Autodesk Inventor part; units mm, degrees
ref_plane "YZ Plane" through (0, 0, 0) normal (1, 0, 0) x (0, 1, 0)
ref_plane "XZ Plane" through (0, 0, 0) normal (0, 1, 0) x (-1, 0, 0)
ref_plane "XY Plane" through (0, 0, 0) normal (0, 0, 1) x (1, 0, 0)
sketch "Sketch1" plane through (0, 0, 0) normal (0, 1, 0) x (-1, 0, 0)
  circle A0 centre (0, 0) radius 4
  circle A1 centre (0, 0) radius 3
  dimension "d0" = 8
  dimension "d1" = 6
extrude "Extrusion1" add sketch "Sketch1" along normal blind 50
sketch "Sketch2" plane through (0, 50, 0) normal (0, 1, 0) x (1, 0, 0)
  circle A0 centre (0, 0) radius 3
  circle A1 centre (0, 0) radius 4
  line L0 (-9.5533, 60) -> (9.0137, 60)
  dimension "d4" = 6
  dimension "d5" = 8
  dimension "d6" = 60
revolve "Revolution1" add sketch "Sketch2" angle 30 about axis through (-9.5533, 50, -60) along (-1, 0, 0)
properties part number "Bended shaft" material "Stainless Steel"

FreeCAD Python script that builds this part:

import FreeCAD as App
import Part
import Sketcher

doc = App.newDocument("Part")
body = doc.addObject("PartDesign::Body", "Body")

# Sketch on XZ plane
sketch1 = body.newObject("Sketcher::SketchObject", "Sketch")
sketch1.AttachmentSupport = (doc.getObject("XZ_Plane"), [""])
sketch1.MapMode = "FlatFace"
sketch1.addGeometry([
    Part.Circle(App.Vector(0, 0, 0), App.Vector(0, 0, 1), 4),
    Part.Circle(App.Vector(0, 0, 0), App.Vector(0, 0, 1), 3),
], False)
sketch1.addConstraint([
    Sketcher.Constraint("Coincident", 0, 3, -1, 1),
    Sketcher.Constraint("Coincident", 1, 3, -1, 1),
    Sketcher.Constraint("Diameter", 0, 8.0),
    Sketcher.Constraint("Diameter", 1, 6.0),
])
pad1 = body.newObject("PartDesign::Pad", "Pad")
pad1.Profile = sketch1
pad1.Length = 50
pad1.Reversed = True

# Sketch on XZ plane
sketch2 = body.newObject("Sketcher::SketchObject", "Sketch001")
sketch2.AttachmentSupport = (doc.getObject("XZ_Plane"), [""])
sketch2.MapMode = "FlatFace"
sketch2.AttachmentOffset = App.Placement(App.Vector(0, 0, -50), App.Rotation())
sketch2.addGeometry([
    Part.Circle(App.Vector(0, 0, 0), App.Vector(0, 0, 1), 4),
    Part.Circle(App.Vector(0, 0, 0), App.Vector(0, 0, 1), 3),
], False)
sketch2.addGeometry(Part.LineSegment(App.Vector(0, -60, 0), App.Vector(-10, -60, 0)), True)  # axis
sketch2.addConstraint([
    Sketcher.Constraint("Horizontal", 2),
    Sketcher.Constraint("Coincident", 0, 3, -1, 1),
    Sketcher.Constraint("Coincident", 1, 3, -1, 1),
    Sketcher.Constraint("PointOnObject", 2, 1, -2),
    Sketcher.Constraint("Diameter", 0, 8.0),
    Sketcher.Constraint("Diameter", 1, 6.0),
    Sketcher.Constraint("DistanceY", 2, 1, -1, 1, 60.0),
    Sketcher.Constraint("DistanceX", 2, 2, 2, 1, 10.0),
])
revolution = body.newObject("PartDesign::Revolution", "Revolution")
revolution.Profile = sketch2
revolution.ReferenceAxis = (sketch2, ["Axis0"])
revolution.Angle = 30

doc.recompute()
